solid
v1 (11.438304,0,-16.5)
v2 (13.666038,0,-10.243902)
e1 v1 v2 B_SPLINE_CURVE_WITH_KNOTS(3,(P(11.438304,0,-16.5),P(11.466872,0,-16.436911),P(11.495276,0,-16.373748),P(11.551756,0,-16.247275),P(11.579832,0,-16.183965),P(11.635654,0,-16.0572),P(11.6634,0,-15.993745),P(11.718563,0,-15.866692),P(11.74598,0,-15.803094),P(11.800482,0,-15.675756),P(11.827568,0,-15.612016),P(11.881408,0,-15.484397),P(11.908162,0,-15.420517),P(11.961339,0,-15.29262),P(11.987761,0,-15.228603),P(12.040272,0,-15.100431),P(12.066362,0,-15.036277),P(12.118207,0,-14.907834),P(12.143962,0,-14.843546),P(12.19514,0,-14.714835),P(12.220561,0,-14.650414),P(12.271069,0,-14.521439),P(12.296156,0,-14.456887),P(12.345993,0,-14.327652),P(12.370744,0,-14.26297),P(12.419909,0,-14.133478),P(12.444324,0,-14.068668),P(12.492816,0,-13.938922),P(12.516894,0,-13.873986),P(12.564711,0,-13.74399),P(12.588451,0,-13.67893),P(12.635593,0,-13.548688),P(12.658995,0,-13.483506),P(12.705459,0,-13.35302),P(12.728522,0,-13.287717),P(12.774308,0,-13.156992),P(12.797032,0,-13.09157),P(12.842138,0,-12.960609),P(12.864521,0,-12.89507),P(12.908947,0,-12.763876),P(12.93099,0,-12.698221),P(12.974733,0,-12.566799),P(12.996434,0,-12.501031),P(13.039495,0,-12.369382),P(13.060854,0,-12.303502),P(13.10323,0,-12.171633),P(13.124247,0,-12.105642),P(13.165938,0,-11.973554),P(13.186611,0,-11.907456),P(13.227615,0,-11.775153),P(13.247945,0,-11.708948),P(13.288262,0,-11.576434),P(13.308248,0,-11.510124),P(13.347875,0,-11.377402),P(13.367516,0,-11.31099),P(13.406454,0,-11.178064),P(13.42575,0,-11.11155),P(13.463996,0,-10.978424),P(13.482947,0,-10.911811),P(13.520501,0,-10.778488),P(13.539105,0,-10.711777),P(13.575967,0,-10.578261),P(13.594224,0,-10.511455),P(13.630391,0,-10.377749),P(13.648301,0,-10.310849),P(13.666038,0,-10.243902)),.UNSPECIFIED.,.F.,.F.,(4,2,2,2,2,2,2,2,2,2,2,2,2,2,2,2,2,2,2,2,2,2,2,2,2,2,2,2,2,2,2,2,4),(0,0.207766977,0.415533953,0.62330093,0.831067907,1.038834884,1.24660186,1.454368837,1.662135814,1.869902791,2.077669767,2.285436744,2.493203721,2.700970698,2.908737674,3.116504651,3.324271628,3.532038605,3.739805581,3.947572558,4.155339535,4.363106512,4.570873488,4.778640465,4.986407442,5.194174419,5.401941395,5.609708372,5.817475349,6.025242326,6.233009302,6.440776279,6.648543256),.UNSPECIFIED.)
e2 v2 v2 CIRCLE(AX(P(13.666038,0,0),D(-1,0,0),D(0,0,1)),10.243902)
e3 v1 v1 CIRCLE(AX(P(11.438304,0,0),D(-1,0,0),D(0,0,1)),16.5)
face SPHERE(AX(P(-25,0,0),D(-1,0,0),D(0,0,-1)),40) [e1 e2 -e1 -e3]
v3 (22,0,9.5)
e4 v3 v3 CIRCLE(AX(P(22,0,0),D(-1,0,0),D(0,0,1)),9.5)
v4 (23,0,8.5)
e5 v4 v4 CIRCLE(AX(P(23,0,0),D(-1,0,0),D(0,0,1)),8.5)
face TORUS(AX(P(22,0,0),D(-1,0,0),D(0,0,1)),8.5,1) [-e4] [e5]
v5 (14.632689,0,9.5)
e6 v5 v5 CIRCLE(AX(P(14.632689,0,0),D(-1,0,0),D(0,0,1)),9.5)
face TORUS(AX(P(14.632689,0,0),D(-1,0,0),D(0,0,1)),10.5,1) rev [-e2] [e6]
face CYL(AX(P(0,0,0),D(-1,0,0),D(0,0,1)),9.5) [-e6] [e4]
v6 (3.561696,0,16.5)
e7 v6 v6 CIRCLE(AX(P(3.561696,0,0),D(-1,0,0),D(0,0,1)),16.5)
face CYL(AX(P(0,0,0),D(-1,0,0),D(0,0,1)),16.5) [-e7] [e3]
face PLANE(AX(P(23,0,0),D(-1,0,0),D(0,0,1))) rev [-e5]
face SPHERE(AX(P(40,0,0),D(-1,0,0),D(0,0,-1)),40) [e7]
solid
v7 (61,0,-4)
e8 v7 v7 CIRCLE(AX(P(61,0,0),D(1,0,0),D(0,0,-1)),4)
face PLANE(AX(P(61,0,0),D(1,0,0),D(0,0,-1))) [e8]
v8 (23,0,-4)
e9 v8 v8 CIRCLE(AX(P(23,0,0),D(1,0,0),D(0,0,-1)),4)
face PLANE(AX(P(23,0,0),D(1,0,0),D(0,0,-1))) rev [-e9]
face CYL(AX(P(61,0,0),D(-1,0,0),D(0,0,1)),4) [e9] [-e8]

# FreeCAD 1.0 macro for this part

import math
import FreeCAD as App
import Part
import Sketcher

doc = App.newDocument("Part")
body = doc.addObject("PartDesign::Body", "Body")

# Sketch on XZ plane
sketch1 = body.newObject("Sketcher::SketchObject", "Sketch")
sketch1.AttachmentSupport = (doc.getObject("XZ_Plane"), [""])
sketch1.MapMode = "FlatFace"
sketch1.addGeometry([
    Part.LineSegment(App.Vector(11.4, -16.5, 0), App.Vector(3.6, -16.5, 0)),  # 0
    Part.ArcOfCircle(Part.Circle(App.Vector(40, 0, 0), App.Vector(0, 0, 1), 40), math.radians(180), math.radians(204)),  # 1
    Part.LineSegment(App.Vector(0, 0, 0), App.Vector(23, 0, 0)),  # 2
    Part.LineSegment(App.Vector(23, 0, 0), App.Vector(23, -8.5, 0)),  # 3
    Part.ArcOfCircle(Part.Circle(App.Vector(22, -8.5, 0), App.Vector(0, 0, 1), 1), math.radians(-90), math.radians(0)),  # 4
    Part.LineSegment(App.Vector(22, -9.5, 0), App.Vector(14.6, -9.5, 0)),  # 5
    Part.ArcOfCircle(Part.Circle(App.Vector(14.6, -10.5, 0), App.Vector(0, 0, 1), 1), math.radians(90), math.radians(165)),  # 6
    Part.ArcOfCircle(Part.Circle(App.Vector(-25, 0, 0), App.Vector(0, 0, 1), 40), math.radians(-24.36), math.radians(-14.84)),  # 7
], False)
sketch1.addConstraint([
    Sketcher.Constraint("Coincident", 0, 2, 1, 2),
    Sketcher.Constraint("Coincident", 1, 1, 2, 1),
    Sketcher.Constraint("Coincident", 2, 2, 3, 1),
    Sketcher.Constraint("Tangent", 3, 2, 4, 2),
    Sketcher.Constraint("Tangent", 4, 1, 5, 1),
    Sketcher.Constraint("Tangent", 5, 2, 6, 1),
    Sketcher.Constraint("Tangent", 6, 2, 7, 2),
    Sketcher.Constraint("Coincident", 7, 1, 0, 1),
    Sketcher.Constraint("Horizontal", 0),
    Sketcher.Constraint("Horizontal", 2),
    Sketcher.Constraint("Vertical", 3),
    Sketcher.Constraint("Horizontal", 5),
    Sketcher.Constraint("Coincident", 1, 1, -1, 1),
    Sketcher.Constraint("Equal", 4, 6),
    Sketcher.Constraint("Equal", 1, 7),
    Sketcher.Constraint("PointOnObject", 1, 3, -1),
    Sketcher.Constraint("PointOnObject", 7, 3, -1),
    Sketcher.Constraint("Radius", 1, 40.0),
    Sketcher.Constraint("Radius", 4, 1.0),
    Sketcher.Constraint("DistanceX", 2, 1, 2, 2, 23.0),
    Sketcher.Constraint("DistanceY", 3, 2, 3, 1, 8.5),
    Sketcher.Constraint("DistanceX", 7, 3, -1, 1, 25.0),
    Sketcher.Constraint("DistanceY", 0, 2, 6, 3, 6.0),
])
revolution = body.newObject("PartDesign::Revolution", "Revolution")
revolution.Profile = sketch1
revolution.ReferenceAxis = (sketch1, ["H_Axis"])
revolution.Angle = 360
body2 = doc.addObject("PartDesign::Body", "Body001")

# Sketch on YZ plane
sketch2 = body2.newObject("Sketcher::SketchObject", "Sketch001")
sketch2.AttachmentSupport = (doc.getObject("YZ_Plane001"), [""])
sketch2.MapMode = "FlatFace"
sketch2.AttachmentOffset = App.Placement(App.Vector(0, 0, 23), App.Rotation())
sketch2.addGeometry(Part.Circle(App.Vector(0, 0, 0), App.Vector(0, 0, 1), 4), False)
sketch2.addConstraint([
    Sketcher.Constraint("Coincident", 0, 3, -1, 1),
    Sketcher.Constraint("Diameter", 0, 8.0),
])
pad1 = body2.newObject("PartDesign::Pad", "Pad")
pad1.Profile = sketch2
pad1.Length = 38

doc.recompute()
